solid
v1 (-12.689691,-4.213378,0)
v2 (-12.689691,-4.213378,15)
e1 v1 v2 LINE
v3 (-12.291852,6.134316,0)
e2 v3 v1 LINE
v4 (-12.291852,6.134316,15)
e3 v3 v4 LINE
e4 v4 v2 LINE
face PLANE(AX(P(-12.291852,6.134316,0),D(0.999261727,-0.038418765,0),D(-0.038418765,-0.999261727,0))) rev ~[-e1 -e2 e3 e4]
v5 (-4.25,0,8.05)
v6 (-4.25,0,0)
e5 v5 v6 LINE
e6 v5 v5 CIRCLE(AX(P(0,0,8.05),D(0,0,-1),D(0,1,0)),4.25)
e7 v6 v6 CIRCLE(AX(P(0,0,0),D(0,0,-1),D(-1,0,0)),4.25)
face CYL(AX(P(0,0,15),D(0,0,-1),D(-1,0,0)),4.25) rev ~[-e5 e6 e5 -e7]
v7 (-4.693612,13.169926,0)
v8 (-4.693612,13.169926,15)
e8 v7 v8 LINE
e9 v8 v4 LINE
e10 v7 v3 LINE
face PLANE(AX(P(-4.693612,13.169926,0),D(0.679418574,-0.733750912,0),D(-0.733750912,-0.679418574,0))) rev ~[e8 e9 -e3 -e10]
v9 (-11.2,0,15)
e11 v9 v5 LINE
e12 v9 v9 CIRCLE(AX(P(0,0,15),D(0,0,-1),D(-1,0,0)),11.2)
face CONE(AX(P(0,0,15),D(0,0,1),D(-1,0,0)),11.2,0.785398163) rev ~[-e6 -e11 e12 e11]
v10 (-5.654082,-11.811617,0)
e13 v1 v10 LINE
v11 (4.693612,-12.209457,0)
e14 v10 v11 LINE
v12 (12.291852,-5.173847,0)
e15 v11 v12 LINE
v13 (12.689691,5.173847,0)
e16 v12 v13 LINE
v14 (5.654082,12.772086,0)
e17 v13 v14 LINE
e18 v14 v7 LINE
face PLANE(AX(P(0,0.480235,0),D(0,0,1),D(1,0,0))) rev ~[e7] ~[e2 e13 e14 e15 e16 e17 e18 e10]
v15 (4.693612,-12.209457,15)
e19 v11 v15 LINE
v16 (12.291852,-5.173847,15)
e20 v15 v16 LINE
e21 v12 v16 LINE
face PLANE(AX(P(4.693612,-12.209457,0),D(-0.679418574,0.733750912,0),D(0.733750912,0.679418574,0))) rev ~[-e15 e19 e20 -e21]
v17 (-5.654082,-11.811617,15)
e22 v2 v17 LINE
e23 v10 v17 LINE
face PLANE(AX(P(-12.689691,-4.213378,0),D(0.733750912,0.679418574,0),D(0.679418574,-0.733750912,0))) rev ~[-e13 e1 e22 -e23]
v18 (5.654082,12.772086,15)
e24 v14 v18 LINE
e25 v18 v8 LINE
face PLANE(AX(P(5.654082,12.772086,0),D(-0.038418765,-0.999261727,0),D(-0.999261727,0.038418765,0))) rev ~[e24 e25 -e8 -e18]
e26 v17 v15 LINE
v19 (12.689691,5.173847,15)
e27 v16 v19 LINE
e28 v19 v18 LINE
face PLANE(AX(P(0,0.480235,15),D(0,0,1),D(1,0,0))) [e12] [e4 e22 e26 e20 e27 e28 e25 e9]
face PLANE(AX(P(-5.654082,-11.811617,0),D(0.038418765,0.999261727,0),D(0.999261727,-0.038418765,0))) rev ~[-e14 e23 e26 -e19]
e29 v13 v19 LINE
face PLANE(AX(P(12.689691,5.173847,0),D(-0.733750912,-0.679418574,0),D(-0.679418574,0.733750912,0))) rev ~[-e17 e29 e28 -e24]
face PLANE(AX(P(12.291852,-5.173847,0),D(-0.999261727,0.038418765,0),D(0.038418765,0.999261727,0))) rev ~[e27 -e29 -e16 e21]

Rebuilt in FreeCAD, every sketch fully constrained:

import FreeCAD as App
import Part
import Sketcher
from FreeCAD import Vector


def add_polygon(sketch, points):
    """Adds a closed chain of lines whose ends are joined by coincident constraints."""
    first, n = sketch.GeometryCount, len(points)
    for a, b in zip(points, points[1:] + points[:1]):
        sketch.addGeometry(Part.LineSegment(App.Vector(*a, 0), App.Vector(*b, 0)), False)
    for i in range(n):
        sketch.addConstraint(Sketcher.Constraint("Coincident", first + i, 2, first + (i + 1) % n, 1))

doc = App.newDocument("Part")
body = doc.addObject("PartDesign::Body", "Body")

sketch1 = doc.addObject("Sketcher::SketchObject", "Sketch")
body.addObject(sketch1)
sketch1.AttachmentSupport = (doc.XY_Plane, [""])
sketch1.MapMode = "FlatFace"
add_polygon(sketch1, [(12, -5), (13, 5), (6, 13), (-5, 13), (-12, 6), (-13, -4), (-6, -12), (5, -12)])
sketch1.addConstraint([
    Sketcher.Constraint("Perpendicular", 0, 2),
    Sketcher.Constraint("Perpendicular", 1, 3),
    Sketcher.Constraint("Perpendicular", 2, 4),
    Sketcher.Constraint("Perpendicular", 3, 5),
    Sketcher.Constraint("Perpendicular", 4, 6),
    Sketcher.Constraint("Perpendicular", 5, 7),
    Sketcher.Constraint("Equal", 0, 1),
    Sketcher.Constraint("Equal", 1, 2),
    Sketcher.Constraint("Equal", 2, 3),
    Sketcher.Constraint("Equal", 3, 4),
    Sketcher.Constraint("Equal", 4, 5),
    Sketcher.Constraint("Distance", 0, 10.355339),
    Sketcher.Constraint("DistanceX", -1, 1, 0, 2, 12.689691),
    Sketcher.Constraint("DistanceX", -1, 1, 1, 2, 5.654082),
    Sketcher.Constraint("DistanceX", 3, 2, -1, 1, 12.291852),
    Sketcher.Constraint("DistanceY", -1, 1, 0, 2, 5.173847),
])
pad1 = doc.addObject("PartDesign::Pad", "Pad")
body.addObject(pad1)
pad1.Profile = sketch1
pad1.Length = 15

sketch2 = doc.addObject("Sketcher::SketchObject", "Sketch001")
body.addObject(sketch2)
sketch2.AttachmentSupport = (doc.XY_Plane, [""])
sketch2.MapMode = "FlatFace"
sketch2.AttachmentOffset = App.Placement(Vector(0, 0, 15), App.Rotation())
sketch2.addGeometry(Part.Circle(Vector(0, 0, 0), Vector(0, 0, 1), 4.2), False)
sketch2.addConstraint([
    Sketcher.Constraint("Coincident", 0, 3, -1, 1),
    Sketcher.Constraint("Diameter", 0, 8.5),
])
doc.recompute()
hole = doc.addObject("PartDesign::Hole", "Hole")
body.addObject(hole)
hole.Profile = sketch2
hole.ThreadType = "None"
hole.Diameter = 8.5
hole.DepthType = "ThroughAll"
hole.HoleCutType = "Countersink"
hole.HoleCutDiameter = 22.4
hole.HoleCutCountersinkAngle = 90

doc.recompute()
